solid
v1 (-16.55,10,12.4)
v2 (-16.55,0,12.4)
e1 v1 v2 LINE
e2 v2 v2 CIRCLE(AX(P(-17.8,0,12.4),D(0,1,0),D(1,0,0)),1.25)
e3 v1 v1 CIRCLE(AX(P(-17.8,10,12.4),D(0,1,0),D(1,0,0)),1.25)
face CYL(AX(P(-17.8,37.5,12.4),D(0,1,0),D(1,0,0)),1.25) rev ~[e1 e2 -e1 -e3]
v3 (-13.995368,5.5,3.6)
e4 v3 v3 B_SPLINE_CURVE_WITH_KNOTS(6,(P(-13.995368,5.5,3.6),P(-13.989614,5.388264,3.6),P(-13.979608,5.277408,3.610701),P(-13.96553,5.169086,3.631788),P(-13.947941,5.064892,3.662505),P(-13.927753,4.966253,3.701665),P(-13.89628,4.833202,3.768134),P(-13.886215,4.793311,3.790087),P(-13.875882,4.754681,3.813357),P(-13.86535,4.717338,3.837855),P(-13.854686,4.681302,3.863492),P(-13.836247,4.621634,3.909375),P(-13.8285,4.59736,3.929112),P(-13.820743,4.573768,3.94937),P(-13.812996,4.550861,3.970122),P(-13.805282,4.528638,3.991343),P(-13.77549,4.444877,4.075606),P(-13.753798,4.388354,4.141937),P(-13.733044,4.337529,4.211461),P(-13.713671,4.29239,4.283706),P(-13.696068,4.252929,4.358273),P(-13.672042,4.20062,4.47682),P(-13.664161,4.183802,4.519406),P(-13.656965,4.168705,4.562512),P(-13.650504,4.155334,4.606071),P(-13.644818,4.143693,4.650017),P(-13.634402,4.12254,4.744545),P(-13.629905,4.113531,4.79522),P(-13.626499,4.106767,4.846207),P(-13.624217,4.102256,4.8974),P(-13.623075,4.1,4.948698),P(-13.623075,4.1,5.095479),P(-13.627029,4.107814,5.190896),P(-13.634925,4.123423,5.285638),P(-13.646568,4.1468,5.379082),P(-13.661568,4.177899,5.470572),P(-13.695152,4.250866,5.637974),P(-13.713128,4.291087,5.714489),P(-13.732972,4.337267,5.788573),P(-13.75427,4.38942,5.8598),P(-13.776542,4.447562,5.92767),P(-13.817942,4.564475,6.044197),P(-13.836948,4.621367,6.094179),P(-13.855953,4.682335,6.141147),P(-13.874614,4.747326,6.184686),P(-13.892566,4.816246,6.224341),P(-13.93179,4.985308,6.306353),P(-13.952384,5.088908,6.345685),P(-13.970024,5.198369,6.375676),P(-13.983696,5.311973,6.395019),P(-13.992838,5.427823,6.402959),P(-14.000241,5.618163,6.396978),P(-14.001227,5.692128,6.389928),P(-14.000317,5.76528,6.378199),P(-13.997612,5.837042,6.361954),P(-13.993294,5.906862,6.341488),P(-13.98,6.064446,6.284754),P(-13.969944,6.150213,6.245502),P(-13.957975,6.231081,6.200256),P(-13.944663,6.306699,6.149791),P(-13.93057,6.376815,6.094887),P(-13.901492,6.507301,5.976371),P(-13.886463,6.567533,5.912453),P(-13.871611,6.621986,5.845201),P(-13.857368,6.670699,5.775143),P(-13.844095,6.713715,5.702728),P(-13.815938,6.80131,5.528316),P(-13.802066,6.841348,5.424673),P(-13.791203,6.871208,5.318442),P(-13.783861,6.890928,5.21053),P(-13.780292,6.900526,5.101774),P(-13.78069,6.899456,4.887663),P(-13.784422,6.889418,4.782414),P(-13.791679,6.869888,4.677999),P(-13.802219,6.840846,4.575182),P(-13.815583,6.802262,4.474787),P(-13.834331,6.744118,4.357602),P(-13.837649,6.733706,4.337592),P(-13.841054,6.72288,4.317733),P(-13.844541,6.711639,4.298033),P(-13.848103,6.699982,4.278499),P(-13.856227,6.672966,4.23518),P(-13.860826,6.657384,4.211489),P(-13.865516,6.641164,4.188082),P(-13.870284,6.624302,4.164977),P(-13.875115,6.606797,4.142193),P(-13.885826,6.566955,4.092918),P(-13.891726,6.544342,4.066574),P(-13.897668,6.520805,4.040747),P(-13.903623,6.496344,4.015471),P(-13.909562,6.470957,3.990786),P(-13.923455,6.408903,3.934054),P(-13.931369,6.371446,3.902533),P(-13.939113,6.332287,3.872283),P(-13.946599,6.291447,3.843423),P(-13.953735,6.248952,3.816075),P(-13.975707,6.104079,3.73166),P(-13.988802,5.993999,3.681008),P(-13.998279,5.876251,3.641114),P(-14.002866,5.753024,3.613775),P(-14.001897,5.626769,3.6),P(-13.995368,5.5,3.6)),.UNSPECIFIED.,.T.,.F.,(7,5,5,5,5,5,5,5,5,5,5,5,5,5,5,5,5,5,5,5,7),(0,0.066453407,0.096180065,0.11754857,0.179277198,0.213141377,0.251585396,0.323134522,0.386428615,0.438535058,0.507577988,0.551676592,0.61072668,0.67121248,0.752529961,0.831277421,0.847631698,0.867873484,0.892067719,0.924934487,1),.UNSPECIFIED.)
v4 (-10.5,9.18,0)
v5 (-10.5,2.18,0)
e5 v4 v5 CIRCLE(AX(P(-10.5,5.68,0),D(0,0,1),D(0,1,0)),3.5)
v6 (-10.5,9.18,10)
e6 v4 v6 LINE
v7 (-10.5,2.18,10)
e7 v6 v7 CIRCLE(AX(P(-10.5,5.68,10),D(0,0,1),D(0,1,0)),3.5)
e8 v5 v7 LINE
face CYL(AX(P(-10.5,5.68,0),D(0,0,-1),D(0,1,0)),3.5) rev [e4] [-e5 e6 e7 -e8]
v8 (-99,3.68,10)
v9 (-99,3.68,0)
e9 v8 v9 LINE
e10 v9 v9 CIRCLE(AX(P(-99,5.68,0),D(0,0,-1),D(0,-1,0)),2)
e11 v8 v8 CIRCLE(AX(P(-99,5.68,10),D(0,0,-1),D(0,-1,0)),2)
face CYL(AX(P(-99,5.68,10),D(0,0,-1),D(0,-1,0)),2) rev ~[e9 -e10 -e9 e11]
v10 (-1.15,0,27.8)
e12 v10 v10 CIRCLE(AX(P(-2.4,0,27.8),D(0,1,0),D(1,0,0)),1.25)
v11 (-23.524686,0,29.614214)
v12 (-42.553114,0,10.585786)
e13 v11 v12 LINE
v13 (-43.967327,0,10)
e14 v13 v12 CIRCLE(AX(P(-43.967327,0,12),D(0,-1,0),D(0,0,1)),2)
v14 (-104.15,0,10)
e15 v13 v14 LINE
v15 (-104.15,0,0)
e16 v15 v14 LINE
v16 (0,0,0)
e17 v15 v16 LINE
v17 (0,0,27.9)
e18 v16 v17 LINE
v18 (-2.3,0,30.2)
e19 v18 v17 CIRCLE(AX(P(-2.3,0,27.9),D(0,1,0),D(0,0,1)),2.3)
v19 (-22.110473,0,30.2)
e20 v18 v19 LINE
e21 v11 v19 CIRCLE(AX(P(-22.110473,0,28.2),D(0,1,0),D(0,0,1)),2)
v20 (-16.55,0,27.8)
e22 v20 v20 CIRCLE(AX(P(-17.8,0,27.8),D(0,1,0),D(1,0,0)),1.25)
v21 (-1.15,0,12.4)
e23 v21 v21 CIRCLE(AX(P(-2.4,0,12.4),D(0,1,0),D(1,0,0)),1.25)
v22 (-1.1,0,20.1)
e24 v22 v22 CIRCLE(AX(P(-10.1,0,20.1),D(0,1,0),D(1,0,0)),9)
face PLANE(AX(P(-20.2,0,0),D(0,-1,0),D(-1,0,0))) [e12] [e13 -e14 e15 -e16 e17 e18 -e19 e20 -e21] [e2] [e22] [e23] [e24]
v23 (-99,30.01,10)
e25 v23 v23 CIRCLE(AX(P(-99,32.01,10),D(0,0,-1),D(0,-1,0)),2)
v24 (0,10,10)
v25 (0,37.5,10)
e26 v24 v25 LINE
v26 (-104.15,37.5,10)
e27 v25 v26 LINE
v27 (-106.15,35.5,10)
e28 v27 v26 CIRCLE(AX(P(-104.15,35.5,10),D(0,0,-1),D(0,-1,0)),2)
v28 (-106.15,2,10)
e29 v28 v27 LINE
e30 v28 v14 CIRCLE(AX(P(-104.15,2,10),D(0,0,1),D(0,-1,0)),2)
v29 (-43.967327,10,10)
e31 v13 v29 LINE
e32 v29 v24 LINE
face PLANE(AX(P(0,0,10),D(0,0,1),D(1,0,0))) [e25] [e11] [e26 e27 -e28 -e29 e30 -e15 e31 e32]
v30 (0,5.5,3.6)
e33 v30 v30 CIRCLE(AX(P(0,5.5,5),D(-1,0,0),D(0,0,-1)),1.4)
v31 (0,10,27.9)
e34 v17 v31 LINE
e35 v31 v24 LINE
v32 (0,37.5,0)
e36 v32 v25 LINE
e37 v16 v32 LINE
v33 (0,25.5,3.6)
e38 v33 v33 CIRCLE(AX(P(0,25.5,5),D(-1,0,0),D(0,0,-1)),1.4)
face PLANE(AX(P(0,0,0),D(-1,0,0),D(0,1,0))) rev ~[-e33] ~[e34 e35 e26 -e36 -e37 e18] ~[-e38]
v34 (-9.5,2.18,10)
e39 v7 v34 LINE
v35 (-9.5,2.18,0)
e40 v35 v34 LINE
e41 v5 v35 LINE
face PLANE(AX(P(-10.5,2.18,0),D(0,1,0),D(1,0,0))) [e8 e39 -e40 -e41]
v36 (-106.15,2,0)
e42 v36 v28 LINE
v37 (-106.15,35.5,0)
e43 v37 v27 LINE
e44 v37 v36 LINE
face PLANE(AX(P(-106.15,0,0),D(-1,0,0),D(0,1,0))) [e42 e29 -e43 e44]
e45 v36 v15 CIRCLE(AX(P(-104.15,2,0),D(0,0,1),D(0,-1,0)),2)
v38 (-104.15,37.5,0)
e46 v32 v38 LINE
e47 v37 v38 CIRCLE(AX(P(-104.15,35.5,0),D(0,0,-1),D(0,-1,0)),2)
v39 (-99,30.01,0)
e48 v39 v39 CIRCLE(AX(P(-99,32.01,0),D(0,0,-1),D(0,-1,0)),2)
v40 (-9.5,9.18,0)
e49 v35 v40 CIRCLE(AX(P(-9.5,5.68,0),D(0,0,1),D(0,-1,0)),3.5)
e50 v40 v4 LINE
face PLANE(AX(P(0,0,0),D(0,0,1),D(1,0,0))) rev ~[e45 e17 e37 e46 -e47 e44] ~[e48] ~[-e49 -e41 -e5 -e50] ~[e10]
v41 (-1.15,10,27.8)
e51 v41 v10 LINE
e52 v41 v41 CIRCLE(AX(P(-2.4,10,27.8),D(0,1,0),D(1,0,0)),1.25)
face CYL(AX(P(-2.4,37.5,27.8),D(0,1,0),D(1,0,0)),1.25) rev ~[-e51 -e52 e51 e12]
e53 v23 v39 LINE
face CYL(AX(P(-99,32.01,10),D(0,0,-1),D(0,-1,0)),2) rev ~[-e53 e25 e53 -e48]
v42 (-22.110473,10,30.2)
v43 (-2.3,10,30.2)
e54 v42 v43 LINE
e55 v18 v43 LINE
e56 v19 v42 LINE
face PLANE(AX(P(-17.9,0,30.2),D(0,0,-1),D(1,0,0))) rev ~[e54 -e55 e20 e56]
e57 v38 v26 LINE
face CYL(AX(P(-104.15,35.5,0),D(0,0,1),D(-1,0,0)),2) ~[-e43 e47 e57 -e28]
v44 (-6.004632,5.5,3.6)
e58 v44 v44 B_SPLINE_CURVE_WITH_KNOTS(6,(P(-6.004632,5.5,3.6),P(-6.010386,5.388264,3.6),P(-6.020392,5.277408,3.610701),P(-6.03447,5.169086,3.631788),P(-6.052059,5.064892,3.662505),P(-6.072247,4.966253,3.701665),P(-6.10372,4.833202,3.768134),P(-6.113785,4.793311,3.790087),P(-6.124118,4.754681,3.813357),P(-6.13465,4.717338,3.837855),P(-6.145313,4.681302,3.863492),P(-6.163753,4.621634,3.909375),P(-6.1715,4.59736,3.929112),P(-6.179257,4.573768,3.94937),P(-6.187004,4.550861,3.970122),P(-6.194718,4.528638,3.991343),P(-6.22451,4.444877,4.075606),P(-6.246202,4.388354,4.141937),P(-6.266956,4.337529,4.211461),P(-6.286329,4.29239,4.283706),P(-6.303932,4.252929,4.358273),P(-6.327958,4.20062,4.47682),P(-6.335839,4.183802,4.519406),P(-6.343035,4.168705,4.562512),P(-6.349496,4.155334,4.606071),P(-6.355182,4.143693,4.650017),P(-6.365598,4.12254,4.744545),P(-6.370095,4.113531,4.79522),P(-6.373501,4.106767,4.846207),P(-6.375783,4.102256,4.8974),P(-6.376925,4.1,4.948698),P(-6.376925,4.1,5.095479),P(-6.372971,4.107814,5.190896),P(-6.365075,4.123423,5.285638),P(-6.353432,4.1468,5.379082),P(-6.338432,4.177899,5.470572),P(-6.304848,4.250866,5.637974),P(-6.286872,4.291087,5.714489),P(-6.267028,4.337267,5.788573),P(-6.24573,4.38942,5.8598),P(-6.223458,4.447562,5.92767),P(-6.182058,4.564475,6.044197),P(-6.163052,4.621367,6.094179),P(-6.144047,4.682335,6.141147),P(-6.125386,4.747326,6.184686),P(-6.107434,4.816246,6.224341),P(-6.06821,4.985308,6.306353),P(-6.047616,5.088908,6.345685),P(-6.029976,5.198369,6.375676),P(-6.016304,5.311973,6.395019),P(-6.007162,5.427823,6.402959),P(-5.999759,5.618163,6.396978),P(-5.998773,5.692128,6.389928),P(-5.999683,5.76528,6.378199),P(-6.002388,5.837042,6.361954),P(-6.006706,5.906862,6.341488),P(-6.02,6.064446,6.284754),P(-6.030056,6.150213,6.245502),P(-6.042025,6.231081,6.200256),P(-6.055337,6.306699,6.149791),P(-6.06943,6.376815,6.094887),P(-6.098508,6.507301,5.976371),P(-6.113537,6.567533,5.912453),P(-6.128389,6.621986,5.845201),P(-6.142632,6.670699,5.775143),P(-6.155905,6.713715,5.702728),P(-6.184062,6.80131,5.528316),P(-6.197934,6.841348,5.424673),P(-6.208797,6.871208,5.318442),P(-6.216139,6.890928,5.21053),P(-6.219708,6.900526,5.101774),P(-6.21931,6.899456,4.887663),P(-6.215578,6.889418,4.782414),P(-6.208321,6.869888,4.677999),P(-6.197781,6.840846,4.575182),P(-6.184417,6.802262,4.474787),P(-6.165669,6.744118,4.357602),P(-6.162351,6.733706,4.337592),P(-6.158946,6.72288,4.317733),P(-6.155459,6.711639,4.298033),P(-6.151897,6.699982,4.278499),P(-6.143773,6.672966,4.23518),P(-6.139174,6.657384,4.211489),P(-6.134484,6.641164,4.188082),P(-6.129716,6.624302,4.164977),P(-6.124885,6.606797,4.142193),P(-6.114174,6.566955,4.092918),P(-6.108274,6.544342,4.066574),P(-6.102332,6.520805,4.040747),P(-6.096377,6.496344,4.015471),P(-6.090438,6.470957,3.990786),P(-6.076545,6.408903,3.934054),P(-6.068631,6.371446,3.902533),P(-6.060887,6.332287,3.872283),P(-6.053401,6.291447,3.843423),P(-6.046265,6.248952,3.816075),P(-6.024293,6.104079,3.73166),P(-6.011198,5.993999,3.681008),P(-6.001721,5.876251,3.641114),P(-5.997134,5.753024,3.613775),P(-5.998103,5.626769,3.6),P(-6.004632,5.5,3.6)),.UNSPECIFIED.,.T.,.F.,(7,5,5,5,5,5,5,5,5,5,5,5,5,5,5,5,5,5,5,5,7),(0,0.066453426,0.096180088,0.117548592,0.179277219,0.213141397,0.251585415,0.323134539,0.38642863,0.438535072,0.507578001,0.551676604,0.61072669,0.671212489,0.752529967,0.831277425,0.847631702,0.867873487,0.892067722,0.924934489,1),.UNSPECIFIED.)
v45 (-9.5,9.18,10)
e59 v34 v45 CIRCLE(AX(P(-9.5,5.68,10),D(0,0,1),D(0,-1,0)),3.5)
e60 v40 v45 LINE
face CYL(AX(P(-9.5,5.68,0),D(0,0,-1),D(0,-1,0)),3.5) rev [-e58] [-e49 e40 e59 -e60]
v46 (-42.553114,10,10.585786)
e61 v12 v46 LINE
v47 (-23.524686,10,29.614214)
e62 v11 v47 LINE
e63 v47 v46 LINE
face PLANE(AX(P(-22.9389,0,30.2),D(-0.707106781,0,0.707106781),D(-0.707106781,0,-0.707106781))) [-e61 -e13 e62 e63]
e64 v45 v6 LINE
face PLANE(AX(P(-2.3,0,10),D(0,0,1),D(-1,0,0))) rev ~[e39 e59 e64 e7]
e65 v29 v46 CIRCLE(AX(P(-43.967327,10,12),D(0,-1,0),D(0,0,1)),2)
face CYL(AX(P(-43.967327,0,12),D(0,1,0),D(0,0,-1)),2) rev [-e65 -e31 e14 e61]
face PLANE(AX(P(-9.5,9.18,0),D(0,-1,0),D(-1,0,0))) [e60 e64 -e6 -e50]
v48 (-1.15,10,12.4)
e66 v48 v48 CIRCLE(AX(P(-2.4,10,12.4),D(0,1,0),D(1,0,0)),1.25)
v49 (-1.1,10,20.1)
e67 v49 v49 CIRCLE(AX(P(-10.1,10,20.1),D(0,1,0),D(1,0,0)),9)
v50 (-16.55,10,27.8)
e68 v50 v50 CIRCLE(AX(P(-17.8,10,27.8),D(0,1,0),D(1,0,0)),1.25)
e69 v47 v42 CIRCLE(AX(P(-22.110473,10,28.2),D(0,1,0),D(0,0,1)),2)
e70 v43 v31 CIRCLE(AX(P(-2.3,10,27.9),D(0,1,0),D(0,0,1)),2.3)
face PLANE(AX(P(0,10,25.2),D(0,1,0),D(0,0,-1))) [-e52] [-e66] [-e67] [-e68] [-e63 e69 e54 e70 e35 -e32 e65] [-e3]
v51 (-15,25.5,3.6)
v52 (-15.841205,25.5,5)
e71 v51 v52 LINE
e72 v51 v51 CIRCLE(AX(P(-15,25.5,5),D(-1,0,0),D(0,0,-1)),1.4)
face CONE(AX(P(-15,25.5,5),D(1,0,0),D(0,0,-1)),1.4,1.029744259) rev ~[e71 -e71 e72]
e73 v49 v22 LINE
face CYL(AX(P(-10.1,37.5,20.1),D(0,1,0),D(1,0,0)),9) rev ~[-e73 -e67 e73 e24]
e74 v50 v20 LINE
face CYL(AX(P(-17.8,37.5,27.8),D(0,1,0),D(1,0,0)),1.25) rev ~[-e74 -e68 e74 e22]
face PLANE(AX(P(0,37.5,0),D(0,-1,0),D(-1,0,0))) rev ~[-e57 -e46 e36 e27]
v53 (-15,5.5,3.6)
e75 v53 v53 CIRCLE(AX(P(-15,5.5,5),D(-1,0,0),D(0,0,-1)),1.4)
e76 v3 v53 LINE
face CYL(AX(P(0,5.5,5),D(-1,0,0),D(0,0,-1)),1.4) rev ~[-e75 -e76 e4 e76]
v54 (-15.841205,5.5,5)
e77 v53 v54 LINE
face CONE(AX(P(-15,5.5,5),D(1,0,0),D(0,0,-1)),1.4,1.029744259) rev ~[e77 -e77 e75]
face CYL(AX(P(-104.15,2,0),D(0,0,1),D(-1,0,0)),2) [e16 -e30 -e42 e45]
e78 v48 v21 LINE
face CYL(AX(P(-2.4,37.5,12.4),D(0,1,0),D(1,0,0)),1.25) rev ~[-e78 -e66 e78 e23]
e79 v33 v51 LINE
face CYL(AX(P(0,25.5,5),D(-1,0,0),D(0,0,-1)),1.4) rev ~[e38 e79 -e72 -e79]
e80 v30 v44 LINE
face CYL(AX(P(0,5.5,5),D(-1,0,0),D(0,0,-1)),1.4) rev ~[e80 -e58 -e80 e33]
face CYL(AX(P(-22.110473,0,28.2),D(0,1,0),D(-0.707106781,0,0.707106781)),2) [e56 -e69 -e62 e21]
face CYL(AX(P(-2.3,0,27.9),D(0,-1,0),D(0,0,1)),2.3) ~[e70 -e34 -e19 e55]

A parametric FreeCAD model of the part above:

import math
import FreeCAD as App
import Part
import Sketcher
from FreeCAD import Vector
Q = App.Units.Quantity


def edges_at(feature, points):
    """Names of the edges that pass closest to the given points."""
    edges = feature.Shape.Edges
    near = lambda p: min(range(len(edges)), key=lambda i: edges[i].distToShape(Part.Vertex(*p))[0])
    return sorted({f"Edge{near(p) + 1}" for p in points})

doc = App.newDocument("Part")
body = doc.addObject("PartDesign::Body", "Body")

sketch1 = body.newObject("Sketcher::SketchObject", "Sketch")
sketch1.AttachmentSupport = (doc.getObject("XY_Plane"), [""])
sketch1.MapMode = "FlatFace"
sketch1.addGeometry([
    Part.LineSegment(Vector(-106.2, 37.5, 0), Vector(-106.2, 0, 0)),
    Part.LineSegment(Vector(-106.2, 0, 0), Vector(0, 0, 0)),
    Part.LineSegment(Vector(0, 0, 0), Vector(0, 37.5, 0)),
    Part.LineSegment(Vector(0, 37.5, 0), Vector(-106.2, 37.5, 0)),
    Part.Circle(Vector(-99, 5.7, 0), Vector(0, 0, 1), 1.4),
    Part.ArcOfCircle(Part.Circle(Vector(-9.5, 5.7, 0), Vector(0, 0, 1), 3.5), math.radians(-90), math.radians(90)),
    Part.LineSegment(Vector(-9.5, 2.2, 0), Vector(-10.5, 2.2, 0)),
    Part.ArcOfCircle(Part.Circle(Vector(-10.5, 5.7, 0), Vector(0, 0, 1), 3.5), math.radians(90), math.radians(270)),
    Part.LineSegment(Vector(-10.5, 9.2, 0), Vector(-9.5, 9.2, 0)),
    Part.Circle(Vector(-99, 32, 0), Vector(0, 0, 1), 1.4),
], False)
sketch1.addConstraint([
    Sketcher.Constraint("Coincident", 0, 2, 1, 1),
    Sketcher.Constraint("Coincident", 1, 2, 2, 1),
    Sketcher.Constraint("Coincident", 2, 2, 3, 1),
    Sketcher.Constraint("Coincident", 3, 2, 0, 1),
    Sketcher.Constraint("Tangent", 5, 1, 6, 1),
    Sketcher.Constraint("Tangent", 6, 2, 7, 2),
    Sketcher.Constraint("Tangent", 7, 1, 8, 1),
    Sketcher.Constraint("Tangent", 8, 2, 5, 2),
    Sketcher.Constraint("Vertical", 0),
    Sketcher.Constraint("Horizontal", 1),
    Sketcher.Constraint("Vertical", 2),
    Sketcher.Constraint("Horizontal", 3),
    Sketcher.Constraint("Horizontal", 6),
    Sketcher.Constraint("Horizontal", 8),
    Sketcher.Constraint("Coincident", 1, 2, -1, 1),
    Sketcher.Constraint("Equal", 4, 9),
    Sketcher.Constraint("Horizontal", 4, 3, 5, 3),
    Sketcher.Constraint("Vertical", 4, 3, 9, 3),
    Sketcher.Constraint("Diameter", 4, 2.8),
    Sketcher.Constraint("Radius", 5, 3.5),
    Sketcher.Constraint("DistanceX", 6, 2, 6, 1, 1.0),
    Sketcher.Constraint("DistanceY", 0, 2, 0, 1, 37.5),
    Sketcher.Constraint("DistanceX", 4, 3, -1, 1, 99.0),
    Sketcher.Constraint("DistanceX", 1, 1, 1, 2, 106.15),
    Sketcher.Constraint("DistanceX", 5, 3, -1, 1, 9.5),
    Sketcher.Constraint("DistanceY", -1, 1, 4, 3, 5.68),
    Sketcher.Constraint("DistanceY", -1, 1, 9, 3, 32.01),
])
pad1 = body.newObject("PartDesign::Pad", "Pad")
pad1.Profile = sketch1
pad1.Length = 10

sketch2 = body.newObject("Sketcher::SketchObject", "Sketch001")
sketch2.AttachmentSupport = (doc.getObject("XZ_Plane"), [""])
sketch2.MapMode = "FlatFace"
sketch2.addGeometry([
    Part.LineSegment(Vector(-43.1, 10, 0), Vector(-22.9, 30.2, 0)),
    Part.LineSegment(Vector(-22.9, 30.2, 0), Vector(-2.3, 30.2, 0)),
    Part.ArcOfCircle(Part.Circle(Vector(-2.3, 27.9, 0), Vector(0, 0, 1), 2.3), math.radians(0), math.radians(90)),
    Part.LineSegment(Vector(0, 27.9, 0), Vector(0, 10, 0)),
    Part.LineSegment(Vector(0, 10, 0), Vector(-43.1, 10, 0)),
    Part.Circle(Vector(-2.4, 27.8, 0), Vector(0, 0, 1), 1),
    Part.Circle(Vector(-10.1, 20.1, 0), Vector(0, 0, 1), 8),
    Part.Circle(Vector(-17.8, 27.8, 0), Vector(0, 0, 1), 1),
    Part.Circle(Vector(-2.4, 12.4, 0), Vector(0, 0, 1), 1),
    Part.Circle(Vector(-17.8, 12.4, 0), Vector(0, 0, 1), 1),
], False)
sketch2.addConstraint([
    Sketcher.Constraint("Coincident", 0, 2, 1, 1),
    Sketcher.Constraint("Tangent", 1, 2, 2, 2),
    Sketcher.Constraint("Tangent", 2, 1, 3, 1),
    Sketcher.Constraint("Coincident", 3, 2, 4, 1),
    Sketcher.Constraint("Coincident", 4, 2, 0, 1),
    Sketcher.Constraint("Horizontal", 1),
    Sketcher.Constraint("Vertical", 3),
    Sketcher.Constraint("Horizontal", 4),
    Sketcher.Constraint("Equal", 5, 7),
    Sketcher.Constraint("Equal", 7, 8),
    Sketcher.Constraint("Equal", 8, 9),
    Sketcher.Constraint("PointOnObject", 2, 1, -2),
    Sketcher.Constraint("Horizontal", 5, 3, 7, 3),
    Sketcher.Constraint("Horizontal", 8, 3, 9, 3),
    Sketcher.Constraint("Vertical", 5, 3, 8, 3),
    Sketcher.Constraint("Vertical", 7, 3, 9, 3),
    Sketcher.Constraint("Diameter", 5, 2.0),
    Sketcher.Constraint("Diameter", 6, 16.0),
    Sketcher.Constraint("Radius", 2, 2.3),
    Sketcher.Constraint("Angle", 0, Q("45 deg")),
    Sketcher.Constraint("DistanceY", 3, 2, 3, 1, 17.9),
    Sketcher.Constraint("DistanceY", -1, 1, 3, 2, 10.0),
    Sketcher.Constraint("DistanceX", 5, 3, -1, 1, 2.4),
    Sketcher.Constraint("DistanceY", -1, 1, 5, 3, 27.8),
    Sketcher.Constraint("DistanceX", 6, 3, -1, 1, 10.1),
    Sketcher.Constraint("DistanceY", -1, 1, 6, 3, 20.1),
    Sketcher.Constraint("DistanceX", 7, 3, -1, 1, 17.8),
    Sketcher.Constraint("DistanceY", -1, 1, 8, 3, 12.4),
    Sketcher.Constraint("DistanceX", 1, 1, 1, 2, 20.639),
])
pad2 = body.newObject("PartDesign::Pad", "Pad001")
pad2.Profile = sketch2
pad2.Length = 10
pad2.Reversed = True

sketch3 = body.newObject("Sketcher::SketchObject", "Sketch002")
sketch3.AttachmentSupport = (doc.getObject("XZ_Plane"), [""])
sketch3.MapMode = "FlatFace"
sketch3.AttachmentOffset = App.Placement(Vector(0, 0, -37.5), App.Rotation())
sketch3.addGeometry([
    Part.Circle(Vector(-10.1, 20.1, 0), Vector(0, 0, 1), 9),
    Part.Circle(Vector(-17.8, 27.8, 0), Vector(0, 0, 1), 1.2),
    Part.Circle(Vector(-17.8, 12.4, 0), Vector(0, 0, 1), 1.2),
    Part.Circle(Vector(-2.4, 27.8, 0), Vector(0, 0, 1), 1.2),
    Part.Circle(Vector(-2.4, 12.4, 0), Vector(0, 0, 1), 1.2),
], False)
sketch3.addConstraint([
    Sketcher.Constraint("Equal", 1, 2),
    Sketcher.Constraint("Equal", 2, 3),
    Sketcher.Constraint("Equal", 3, 4),
    Sketcher.Constraint("Horizontal", 1, 3, 3, 3),
    Sketcher.Constraint("Horizontal", 2, 3, 4, 3),
    Sketcher.Constraint("Vertical", 1, 3, 2, 3),
    Sketcher.Constraint("Vertical", 3, 3, 4, 3),
    Sketcher.Constraint("Diameter", 0, 18.0),
    Sketcher.Constraint("Diameter", 1, 2.5),
    Sketcher.Constraint("DistanceX", 0, 3, -1, 1, 10.1),
    Sketcher.Constraint("DistanceY", -1, 1, 0, 3, 20.1),
    Sketcher.Constraint("DistanceX", 1, 3, -1, 1, 17.8),
    Sketcher.Constraint("DistanceY", -1, 1, 1, 3, 27.8),
    Sketcher.Constraint("DistanceY", -1, 1, 2, 3, 12.4),
    Sketcher.Constraint("DistanceX", 3, 3, -1, 1, 2.4),
])
pocket1 = body.newObject("PartDesign::Pocket", "Pocket")
pocket1.Profile = sketch3
pocket1.Type = "ThroughAll"
pocket1.Reversed = True
doc.recompute()

fillet = body.newObject("PartDesign::Fillet", "Fillet")
fillet.Base = (pocket1, edges_at(pocket1, [
    (-22.939, 5, 30.2),
    (-43.139, 5, 10),
    (-106.15, 37.5, 5),
    (-106.15, 0, 5),
]))
fillet.Radius = 2

sketch4 = body.newObject("Sketcher::SketchObject", "Sketch003")
sketch4.AttachmentSupport = (doc.getObject("YZ_Plane"), [""])
sketch4.MapMode = "FlatFace"
sketch4.addGeometry([
    Part.Circle(Vector(25.5, 5, 0), Vector(0, 0, 1), 1.4),
    Part.Circle(Vector(5.5, 5, 0), Vector(0, 0, 1), 1.4),
], False)
sketch4.addConstraint([
    Sketcher.Constraint("Equal", 0, 1),
    Sketcher.Constraint("Horizontal", 0, 3, 1, 3),
    Sketcher.Constraint("Diameter", 0, 2.8),
    Sketcher.Constraint("DistanceY", -1, 1, 0, 3, 5.0),
    Sketcher.Constraint("DistanceX", 1, 3, 0, 3, 20.0),
    Sketcher.Constraint("DistanceX", -1, 1, 0, 3, 25.5),
])
doc.recompute()
hole = body.newObject("PartDesign::Hole", "Hole")
hole.Profile = sketch4
hole.ThreadType = "None"
hole.Diameter = 2.8
hole.DepthType = "Dimension"
hole.Depth = 15
hole.DrillPoint = "Angled"
hole.DrillPointAngle = 118

sketch5 = body.newObject("Sketcher::SketchObject", "Sketch004")
sketch5.AttachmentSupport = (doc.getObject("XY_Plane"), [""])
sketch5.MapMode = "FlatFace"
sketch5.AttachmentOffset = App.Placement(Vector(0, 0, 10), App.Rotation())
sketch5.addGeometry([
    Part.Circle(Vector(-99, 5.7, 0), Vector(0, 0, 1), 2),
    Part.Circle(Vector(-99, 32, 0), Vector(0, 0, 1), 2),
], False)
sketch5.addConstraint([
    Sketcher.Constraint("Equal", 0, 1),
    Sketcher.Constraint("Vertical", 0, 3, 1, 3),
    Sketcher.Constraint("Diameter", 0, 4.0),
    Sketcher.Constraint("DistanceX", 0, 3, -1, 1, 99.0),
    Sketcher.Constraint("DistanceY", -1, 1, 0, 3, 5.68),
    Sketcher.Constraint("DistanceY", -1, 1, 1, 3, 32.01),
])
doc.recompute()
hole2 = body.newObject("PartDesign::Hole", "Hole001")
hole2.Profile = sketch5
hole2.ThreadType = "None"
hole2.Diameter = 4
hole2.DepthType = "Dimension"
hole2.Depth = 15
hole2.DrillPoint = "Angled"
hole2.DrillPointAngle = 118

doc.recompute()
